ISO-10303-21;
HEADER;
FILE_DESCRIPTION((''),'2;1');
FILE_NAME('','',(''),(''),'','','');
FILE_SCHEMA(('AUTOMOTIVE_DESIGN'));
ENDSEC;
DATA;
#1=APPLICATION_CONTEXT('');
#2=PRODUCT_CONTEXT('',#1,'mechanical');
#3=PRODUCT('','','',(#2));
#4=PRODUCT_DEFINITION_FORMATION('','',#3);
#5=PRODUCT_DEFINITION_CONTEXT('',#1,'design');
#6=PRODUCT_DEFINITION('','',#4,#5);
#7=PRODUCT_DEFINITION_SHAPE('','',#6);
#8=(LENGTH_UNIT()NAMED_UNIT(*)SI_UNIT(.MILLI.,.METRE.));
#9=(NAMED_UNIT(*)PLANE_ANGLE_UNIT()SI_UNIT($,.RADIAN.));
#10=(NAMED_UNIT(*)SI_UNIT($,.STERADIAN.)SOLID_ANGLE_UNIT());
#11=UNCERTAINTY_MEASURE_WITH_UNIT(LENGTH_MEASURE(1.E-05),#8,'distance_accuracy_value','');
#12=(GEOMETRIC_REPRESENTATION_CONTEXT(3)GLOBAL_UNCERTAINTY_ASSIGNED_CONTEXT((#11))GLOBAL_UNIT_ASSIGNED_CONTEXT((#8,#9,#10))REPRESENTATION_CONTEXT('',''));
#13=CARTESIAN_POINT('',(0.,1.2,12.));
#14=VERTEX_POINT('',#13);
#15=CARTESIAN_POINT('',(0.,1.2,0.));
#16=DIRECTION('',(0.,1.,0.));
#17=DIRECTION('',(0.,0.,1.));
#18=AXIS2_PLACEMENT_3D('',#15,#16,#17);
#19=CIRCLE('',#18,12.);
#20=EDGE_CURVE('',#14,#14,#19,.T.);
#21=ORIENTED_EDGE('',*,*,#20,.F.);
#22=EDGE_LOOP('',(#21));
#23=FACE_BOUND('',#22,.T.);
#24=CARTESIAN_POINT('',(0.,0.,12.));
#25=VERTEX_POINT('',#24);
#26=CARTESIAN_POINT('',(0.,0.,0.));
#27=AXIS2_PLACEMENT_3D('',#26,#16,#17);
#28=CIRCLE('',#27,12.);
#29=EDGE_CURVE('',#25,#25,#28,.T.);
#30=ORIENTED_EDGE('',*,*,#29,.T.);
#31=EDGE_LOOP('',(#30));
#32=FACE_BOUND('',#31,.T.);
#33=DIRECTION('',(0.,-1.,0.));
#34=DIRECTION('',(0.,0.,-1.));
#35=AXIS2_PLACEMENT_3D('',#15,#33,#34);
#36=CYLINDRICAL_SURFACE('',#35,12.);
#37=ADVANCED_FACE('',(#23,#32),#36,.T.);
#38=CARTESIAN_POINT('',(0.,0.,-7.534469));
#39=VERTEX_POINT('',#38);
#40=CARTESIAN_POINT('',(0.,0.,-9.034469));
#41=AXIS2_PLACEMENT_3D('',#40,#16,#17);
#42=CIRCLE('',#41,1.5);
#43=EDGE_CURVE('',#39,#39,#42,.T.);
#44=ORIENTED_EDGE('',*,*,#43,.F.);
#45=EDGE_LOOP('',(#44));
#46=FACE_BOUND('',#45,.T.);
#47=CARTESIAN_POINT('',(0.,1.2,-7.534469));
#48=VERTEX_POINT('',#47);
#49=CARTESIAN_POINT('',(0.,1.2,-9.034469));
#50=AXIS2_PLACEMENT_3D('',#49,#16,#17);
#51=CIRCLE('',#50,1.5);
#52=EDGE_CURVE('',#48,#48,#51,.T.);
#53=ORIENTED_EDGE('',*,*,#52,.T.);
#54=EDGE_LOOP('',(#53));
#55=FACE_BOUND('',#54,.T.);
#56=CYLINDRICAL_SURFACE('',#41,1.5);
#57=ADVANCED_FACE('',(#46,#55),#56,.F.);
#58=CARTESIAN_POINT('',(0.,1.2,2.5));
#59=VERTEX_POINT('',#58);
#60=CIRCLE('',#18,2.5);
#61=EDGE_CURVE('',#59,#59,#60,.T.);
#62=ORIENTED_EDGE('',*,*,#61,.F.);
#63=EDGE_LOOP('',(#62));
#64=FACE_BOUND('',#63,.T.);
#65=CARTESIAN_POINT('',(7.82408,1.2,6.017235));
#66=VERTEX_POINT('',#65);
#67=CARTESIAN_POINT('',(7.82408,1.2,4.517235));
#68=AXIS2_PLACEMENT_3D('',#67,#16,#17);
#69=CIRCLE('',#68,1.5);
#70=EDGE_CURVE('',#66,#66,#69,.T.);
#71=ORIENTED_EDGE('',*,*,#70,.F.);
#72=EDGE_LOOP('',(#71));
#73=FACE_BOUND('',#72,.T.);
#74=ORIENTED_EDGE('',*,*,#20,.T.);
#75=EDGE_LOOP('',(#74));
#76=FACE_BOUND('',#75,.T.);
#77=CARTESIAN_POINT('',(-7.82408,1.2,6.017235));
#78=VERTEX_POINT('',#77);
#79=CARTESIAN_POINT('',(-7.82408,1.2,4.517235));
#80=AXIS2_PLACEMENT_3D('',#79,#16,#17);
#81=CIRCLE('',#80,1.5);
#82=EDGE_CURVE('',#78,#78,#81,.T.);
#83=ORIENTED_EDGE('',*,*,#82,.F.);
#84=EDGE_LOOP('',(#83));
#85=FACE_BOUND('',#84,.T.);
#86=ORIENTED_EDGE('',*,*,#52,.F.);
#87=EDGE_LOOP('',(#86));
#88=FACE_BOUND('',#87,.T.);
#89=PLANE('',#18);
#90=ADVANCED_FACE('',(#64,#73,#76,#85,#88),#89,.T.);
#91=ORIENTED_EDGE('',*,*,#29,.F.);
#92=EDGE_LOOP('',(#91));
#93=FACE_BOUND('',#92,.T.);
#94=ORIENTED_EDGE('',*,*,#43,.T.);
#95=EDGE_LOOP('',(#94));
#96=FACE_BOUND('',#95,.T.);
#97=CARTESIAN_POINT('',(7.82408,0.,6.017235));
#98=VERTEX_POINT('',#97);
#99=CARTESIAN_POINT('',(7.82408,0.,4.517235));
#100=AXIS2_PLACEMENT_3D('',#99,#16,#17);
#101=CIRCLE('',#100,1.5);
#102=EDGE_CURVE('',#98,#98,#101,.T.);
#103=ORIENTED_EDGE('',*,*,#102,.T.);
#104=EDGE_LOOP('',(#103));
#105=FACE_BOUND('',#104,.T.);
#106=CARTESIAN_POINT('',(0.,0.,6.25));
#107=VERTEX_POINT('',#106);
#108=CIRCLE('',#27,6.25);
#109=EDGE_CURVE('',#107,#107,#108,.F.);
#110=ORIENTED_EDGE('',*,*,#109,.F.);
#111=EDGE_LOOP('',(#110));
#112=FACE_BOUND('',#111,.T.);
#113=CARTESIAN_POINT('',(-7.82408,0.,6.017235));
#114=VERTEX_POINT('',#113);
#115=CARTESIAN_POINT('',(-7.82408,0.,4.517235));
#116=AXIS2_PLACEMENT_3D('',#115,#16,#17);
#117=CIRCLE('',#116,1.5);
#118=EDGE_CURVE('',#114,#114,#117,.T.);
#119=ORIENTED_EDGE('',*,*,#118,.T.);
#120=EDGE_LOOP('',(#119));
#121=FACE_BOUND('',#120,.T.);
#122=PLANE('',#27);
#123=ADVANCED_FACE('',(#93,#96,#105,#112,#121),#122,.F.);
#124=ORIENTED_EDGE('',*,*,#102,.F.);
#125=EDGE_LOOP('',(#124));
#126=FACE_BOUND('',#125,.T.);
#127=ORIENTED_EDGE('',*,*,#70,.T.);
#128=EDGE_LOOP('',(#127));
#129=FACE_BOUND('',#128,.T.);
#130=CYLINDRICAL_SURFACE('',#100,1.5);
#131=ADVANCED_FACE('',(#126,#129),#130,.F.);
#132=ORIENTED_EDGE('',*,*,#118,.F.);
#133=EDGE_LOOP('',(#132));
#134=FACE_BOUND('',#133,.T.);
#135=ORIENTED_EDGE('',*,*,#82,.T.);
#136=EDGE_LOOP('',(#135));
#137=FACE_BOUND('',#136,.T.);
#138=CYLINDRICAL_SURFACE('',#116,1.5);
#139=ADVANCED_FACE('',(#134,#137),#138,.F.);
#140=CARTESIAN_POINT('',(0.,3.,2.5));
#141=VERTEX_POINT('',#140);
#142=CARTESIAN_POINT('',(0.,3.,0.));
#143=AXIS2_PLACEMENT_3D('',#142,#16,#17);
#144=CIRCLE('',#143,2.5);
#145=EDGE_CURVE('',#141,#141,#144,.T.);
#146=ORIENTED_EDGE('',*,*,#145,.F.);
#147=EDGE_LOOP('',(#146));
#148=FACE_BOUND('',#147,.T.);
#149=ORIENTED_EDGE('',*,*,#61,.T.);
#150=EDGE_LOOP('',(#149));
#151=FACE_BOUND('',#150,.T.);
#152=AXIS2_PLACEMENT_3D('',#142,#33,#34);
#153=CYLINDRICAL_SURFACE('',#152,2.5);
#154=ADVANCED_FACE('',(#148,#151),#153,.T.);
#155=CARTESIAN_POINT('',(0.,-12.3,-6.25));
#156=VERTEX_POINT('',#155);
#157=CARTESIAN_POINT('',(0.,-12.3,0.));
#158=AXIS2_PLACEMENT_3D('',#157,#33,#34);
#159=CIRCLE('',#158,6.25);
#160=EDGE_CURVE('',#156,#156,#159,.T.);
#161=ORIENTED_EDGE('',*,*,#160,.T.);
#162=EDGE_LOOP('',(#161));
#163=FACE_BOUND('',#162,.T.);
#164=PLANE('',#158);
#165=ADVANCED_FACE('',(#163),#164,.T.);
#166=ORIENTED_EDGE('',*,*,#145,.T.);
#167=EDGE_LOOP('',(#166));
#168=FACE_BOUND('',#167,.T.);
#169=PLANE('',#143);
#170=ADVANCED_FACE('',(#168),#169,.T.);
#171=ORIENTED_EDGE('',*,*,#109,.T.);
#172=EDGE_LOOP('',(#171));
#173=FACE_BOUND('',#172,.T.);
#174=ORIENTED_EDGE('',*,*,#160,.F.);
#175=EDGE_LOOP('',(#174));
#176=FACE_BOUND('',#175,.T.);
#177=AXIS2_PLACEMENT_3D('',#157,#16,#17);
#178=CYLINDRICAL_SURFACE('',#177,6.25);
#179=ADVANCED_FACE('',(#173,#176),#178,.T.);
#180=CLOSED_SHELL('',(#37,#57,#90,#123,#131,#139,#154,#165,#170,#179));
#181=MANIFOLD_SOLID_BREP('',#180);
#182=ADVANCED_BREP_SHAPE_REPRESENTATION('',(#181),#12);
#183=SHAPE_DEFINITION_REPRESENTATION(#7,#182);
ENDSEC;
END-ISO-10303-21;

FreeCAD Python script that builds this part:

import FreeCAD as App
import Part
import Sketcher

doc = App.newDocument("Part")
body = doc.addObject("PartDesign::Body", "Body")

# Sketch on XZ plane
sketch1 = doc.addObject("Sketcher::SketchObject", "Sketch")
body.addObject(sketch1)
sketch1.AttachmentSupport = (doc.XZ_Plane, [""])
sketch1.MapMode = "FlatFace"
sketch1.addGeometry([
    Part.Circle(App.Vector(0, 0, 0), App.Vector(0, 0, 1), 12),
    Part.Circle(App.Vector(0, 0, 0), App.Vector(0, 0, 1), 2.5),
], False)
sketch1.addConstraint([
    Sketcher.Constraint("Coincident", 0, 3, -1, 1),
    Sketcher.Constraint("Coincident", 1, 3, -1, 1),
    Sketcher.Constraint("Diameter", 0, 24.0),
    Sketcher.Constraint("Diameter", 1, 5.0),
])
pad1 = doc.addObject("PartDesign::Pad", "Pad")
body.addObject(pad1)
pad1.Profile = sketch1
pad1.Length = 1.2
pad1.Reversed = True

# Sketch on XZ plane
sketch2 = doc.addObject("Sketcher::SketchObject", "Sketch001")
body.addObject(sketch2)
sketch2.AttachmentSupport = (doc.XZ_Plane, [""])
sketch2.MapMode = "FlatFace"
sketch2.AttachmentOffset = App.Placement(App.Vector(0, 0, -1.2), App.Rotation())
sketch2.addGeometry([
    Part.Circle(App.Vector(0, -9, 0), App.Vector(0, 0, 1), 1.5),
    Part.Circle(App.Vector(7.8, 4.5, 0), App.Vector(0, 0, 1), 1.5),
    Part.Circle(App.Vector(-7.8, 4.5, 0), App.Vector(0, 0, 1), 1.5),
], False)
sketch2.addConstraint([
    Sketcher.Constraint("Equal", 0, 1),
    Sketcher.Constraint("Equal", 1, 2),
    Sketcher.Constraint("Symmetric", 1, 3, 2, 3, -2),
    Sketcher.Constraint("PointOnObject", 0, 3, -2),
    Sketcher.Constraint("Diameter", 0, 3.0),
    Sketcher.Constraint("DistanceY", 0, 3, -1, 1, 9.034469),
    Sketcher.Constraint("DistanceX", -1, 1, 1, 3, 7.82408),
    Sketcher.Constraint("DistanceY", -1, 1, 1, 3, 4.517235),
])
pocket1 = doc.addObject("PartDesign::Pocket", "Pocket")
body.addObject(pocket1)
pocket1.Profile = sketch2
pocket1.Length = 1.2
pocket1.Reversed = True

# Sketch on XZ plane
sketch3 = doc.addObject("Sketcher::SketchObject", "Sketch002")
body.addObject(sketch3)
sketch3.AttachmentSupport = (doc.XZ_Plane, [""])
sketch3.MapMode = "FlatFace"
sketch3.addGeometry(Part.Circle(App.Vector(0, 0, 0), App.Vector(0, 0, 1), 6), False)
sketch3.addConstraint([
    Sketcher.Constraint("Coincident", 0, 3, -1, 1),
    Sketcher.Constraint("Diameter", 0, 12.5),
])
pad2 = doc.addObject("PartDesign::Pad", "Pad001")
body.addObject(pad2)
pad2.Profile = sketch3
pad2.Length = 12.3

# Sketch on XZ plane
sketch4 = doc.addObject("Sketcher::SketchObject", "Sketch003")
body.addObject(sketch4)
sketch4.AttachmentSupport = (doc.XZ_Plane, [""])
sketch4.MapMode = "FlatFace"
sketch4.addGeometry(Part.Circle(App.Vector(0, 0, 0), App.Vector(0, 0, 1), 2.5), False)
sketch4.addConstraint([
    Sketcher.Constraint("Coincident", 0, 3, -1, 1),
    Sketcher.Constraint("Diameter", 0, 5.0),
])
pad3 = doc.addObject("PartDesign::Pad", "Pad002")
body.addObject(pad3)
pad3.Profile = sketch4
pad3.Length = 3
pad3.Reversed = True

doc.recompute()
